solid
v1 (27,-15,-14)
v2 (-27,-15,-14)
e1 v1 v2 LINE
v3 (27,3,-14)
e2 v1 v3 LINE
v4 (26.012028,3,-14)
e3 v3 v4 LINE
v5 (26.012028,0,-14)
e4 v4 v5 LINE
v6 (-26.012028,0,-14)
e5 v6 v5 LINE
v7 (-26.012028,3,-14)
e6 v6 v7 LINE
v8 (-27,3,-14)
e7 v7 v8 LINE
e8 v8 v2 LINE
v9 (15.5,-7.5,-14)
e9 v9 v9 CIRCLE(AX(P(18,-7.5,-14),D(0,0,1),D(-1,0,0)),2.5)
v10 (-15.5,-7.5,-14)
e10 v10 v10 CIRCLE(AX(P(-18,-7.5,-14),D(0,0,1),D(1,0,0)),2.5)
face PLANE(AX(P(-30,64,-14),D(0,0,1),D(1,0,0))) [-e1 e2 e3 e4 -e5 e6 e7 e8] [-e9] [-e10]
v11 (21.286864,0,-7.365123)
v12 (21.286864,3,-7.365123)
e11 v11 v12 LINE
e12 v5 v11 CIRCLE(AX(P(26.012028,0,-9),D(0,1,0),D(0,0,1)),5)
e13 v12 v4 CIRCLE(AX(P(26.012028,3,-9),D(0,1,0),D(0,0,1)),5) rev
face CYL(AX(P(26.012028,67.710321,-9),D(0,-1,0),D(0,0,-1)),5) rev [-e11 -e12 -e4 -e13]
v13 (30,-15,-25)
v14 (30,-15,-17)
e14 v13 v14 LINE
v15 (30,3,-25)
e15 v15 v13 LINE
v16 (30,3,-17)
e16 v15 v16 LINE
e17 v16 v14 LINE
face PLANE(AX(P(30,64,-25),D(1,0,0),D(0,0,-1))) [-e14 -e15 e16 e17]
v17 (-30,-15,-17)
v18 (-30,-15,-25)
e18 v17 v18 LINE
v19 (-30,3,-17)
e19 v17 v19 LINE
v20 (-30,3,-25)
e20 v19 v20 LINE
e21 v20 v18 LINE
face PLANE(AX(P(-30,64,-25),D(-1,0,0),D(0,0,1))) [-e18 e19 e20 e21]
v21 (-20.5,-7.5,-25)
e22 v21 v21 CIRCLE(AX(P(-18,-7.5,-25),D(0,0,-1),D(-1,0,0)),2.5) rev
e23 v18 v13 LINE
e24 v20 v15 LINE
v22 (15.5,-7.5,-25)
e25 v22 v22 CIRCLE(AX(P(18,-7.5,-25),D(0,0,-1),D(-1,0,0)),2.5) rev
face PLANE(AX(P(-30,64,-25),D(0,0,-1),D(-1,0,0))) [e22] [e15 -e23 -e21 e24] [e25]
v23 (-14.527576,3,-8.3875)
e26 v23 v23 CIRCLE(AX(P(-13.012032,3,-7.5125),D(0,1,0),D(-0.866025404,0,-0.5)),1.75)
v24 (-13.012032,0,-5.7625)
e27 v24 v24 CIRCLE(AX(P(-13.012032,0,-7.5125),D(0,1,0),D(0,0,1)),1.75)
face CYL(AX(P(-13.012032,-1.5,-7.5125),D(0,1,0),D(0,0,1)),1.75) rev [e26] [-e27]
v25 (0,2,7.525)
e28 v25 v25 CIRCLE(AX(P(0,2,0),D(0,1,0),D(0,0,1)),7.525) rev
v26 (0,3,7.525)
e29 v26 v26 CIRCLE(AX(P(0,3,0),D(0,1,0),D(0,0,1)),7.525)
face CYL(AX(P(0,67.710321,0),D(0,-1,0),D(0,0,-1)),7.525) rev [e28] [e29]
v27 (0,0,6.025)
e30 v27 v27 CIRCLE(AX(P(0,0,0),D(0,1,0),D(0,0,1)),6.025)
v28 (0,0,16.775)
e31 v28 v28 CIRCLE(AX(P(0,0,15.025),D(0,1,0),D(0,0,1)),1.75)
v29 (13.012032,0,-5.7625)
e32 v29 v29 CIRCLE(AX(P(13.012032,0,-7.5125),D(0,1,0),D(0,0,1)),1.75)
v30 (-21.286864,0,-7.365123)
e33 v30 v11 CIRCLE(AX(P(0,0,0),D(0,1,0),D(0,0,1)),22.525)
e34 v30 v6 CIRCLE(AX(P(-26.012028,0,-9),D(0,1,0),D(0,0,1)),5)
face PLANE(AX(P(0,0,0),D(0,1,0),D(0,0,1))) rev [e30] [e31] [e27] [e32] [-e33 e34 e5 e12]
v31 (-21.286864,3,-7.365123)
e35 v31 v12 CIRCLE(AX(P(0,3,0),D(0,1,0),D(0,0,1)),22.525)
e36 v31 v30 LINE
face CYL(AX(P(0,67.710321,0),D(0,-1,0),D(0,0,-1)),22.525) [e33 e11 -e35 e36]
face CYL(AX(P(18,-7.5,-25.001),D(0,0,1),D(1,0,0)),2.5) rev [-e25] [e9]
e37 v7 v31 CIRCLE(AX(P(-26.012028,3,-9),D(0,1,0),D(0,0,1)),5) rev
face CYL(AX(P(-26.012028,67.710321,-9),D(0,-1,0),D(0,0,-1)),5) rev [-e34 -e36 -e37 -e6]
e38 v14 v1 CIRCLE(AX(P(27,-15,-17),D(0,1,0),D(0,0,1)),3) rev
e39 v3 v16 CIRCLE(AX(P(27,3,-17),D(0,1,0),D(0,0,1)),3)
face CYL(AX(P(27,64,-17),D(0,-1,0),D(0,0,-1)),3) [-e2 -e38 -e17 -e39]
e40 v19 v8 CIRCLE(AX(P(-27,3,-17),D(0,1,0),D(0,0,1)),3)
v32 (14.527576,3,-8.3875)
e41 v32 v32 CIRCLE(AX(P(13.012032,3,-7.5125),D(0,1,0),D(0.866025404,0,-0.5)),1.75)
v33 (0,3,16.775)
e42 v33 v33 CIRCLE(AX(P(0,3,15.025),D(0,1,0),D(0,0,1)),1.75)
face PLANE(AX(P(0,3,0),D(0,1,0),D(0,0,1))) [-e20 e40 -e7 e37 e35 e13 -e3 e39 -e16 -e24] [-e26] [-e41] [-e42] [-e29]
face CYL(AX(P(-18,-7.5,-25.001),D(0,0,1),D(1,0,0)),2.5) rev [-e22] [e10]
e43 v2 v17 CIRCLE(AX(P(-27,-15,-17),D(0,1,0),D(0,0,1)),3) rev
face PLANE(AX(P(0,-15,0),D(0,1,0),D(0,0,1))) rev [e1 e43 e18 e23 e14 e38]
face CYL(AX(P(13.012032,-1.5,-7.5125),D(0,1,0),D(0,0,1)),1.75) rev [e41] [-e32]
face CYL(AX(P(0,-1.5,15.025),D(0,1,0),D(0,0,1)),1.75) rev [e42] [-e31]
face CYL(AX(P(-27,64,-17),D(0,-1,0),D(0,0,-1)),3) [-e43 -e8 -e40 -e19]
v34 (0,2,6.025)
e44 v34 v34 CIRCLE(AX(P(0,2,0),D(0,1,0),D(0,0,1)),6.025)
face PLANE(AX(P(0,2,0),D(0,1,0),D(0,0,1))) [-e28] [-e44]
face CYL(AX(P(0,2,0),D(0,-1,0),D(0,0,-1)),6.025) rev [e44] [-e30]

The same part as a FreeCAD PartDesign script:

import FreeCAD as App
import Part
import Sketcher
from FreeCAD import Vector


def edges_at(feature, points):
    """Names of the edges that pass closest to the given points."""
    edges = feature.Shape.Edges
    near = lambda p: min(range(len(edges)), key=lambda i: edges[i].distToShape(Part.Vertex(*p))[0])
    return sorted({f"Edge{near(p) + 1}" for p in points})

doc = App.newDocument("Part")
body = doc.addObject("PartDesign::Body", "Body")

# Sketch on XZ plane
sketch1 = body.newObject("Sketcher::SketchObject", "Sketch")
sketch1.AttachmentSupport = (doc.getObject("XZ_Plane"), [""])
sketch1.MapMode = "FlatFace"
sketch1.addGeometry(Part.Circle(Vector(0, 0, 0), Vector(0, 0, 1), 8), False)
sketch1.addGeometry(Part.Circle(Vector(0, 0, 0), Vector(0, 0, 1), 6), False)
sketch1.addConstraint(Sketcher.Constraint("Coincident", 0, 3, -1, 1))
sketch1.addConstraint(Sketcher.Constraint("Coincident", 1, 3, -1, 1))
sketch1.addConstraint(Sketcher.Constraint("Diameter", 0, 15.05))
sketch1.addConstraint(Sketcher.Constraint("Diameter", 1, 12.05))
pad1 = body.newObject("PartDesign::Pad", "Pad")
pad1.Profile = sketch1
pad1.Length = 2
pad1.Reversed = True

# Sketch on XZ plane
sketch2 = body.newObject("Sketcher::SketchObject", "Sketch001")
sketch2.AttachmentSupport = (doc.getObject("XZ_Plane"), [""])
sketch2.MapMode = "FlatFace"
sketch2.addGeometry(Part.Circle(Vector(0, 0, 0), Vector(0, 0, 1), 23), False)
sketch2.addGeometry(Part.Circle(Vector(0, 0, 0), Vector(0, 0, 1), 8), False)
sketch2.addConstraint(Sketcher.Constraint("Coincident", 0, 3, -1, 1))
sketch2.addConstraint(Sketcher.Constraint("Coincident", 1, 3, -1, 1))
sketch2.addConstraint(Sketcher.Constraint("Diameter", 0, 45.05))
sketch2.addConstraint(Sketcher.Constraint("Diameter", 1, 15.05))
pad2 = body.newObject("PartDesign::Pad", "Pad001")
pad2.Profile = sketch2
pad2.Length = 3
pad2.Reversed = True

# Sketch on XZ plane
sketch3 = body.newObject("Sketcher::SketchObject", "Sketch002")
sketch3.AttachmentSupport = (doc.getObject("XZ_Plane"), [""])
sketch3.MapMode = "FlatFace"
sketch3.AttachmentOffset = App.Placement(Vector(0, 0, -3), App.Rotation())
sketch3.addGeometry(Part.Circle(Vector(0, 15, 0), Vector(0, 0, 1), 1.8), False)
sketch3.addConstraint(Sketcher.Constraint("PointOnObject", 0, 3, -2))
sketch3.addConstraint(Sketcher.Constraint("Diameter", 0, 3.5))
sketch3.addConstraint(Sketcher.Constraint("DistanceY", -1, 1, 0, 3, 15.025))
pocket1 = body.newObject("PartDesign::Pocket", "Pocket")
pocket1.Profile = sketch3
pocket1.Length = 4.5
pocket1.Reversed = True
doc.recompute()

polarpattern = body.newObject("PartDesign::PolarPattern", "PolarPattern")
polarpattern.Originals = [pocket1]
polarpattern.Axis = (doc.getObject("Y_Axis"), [""])
polarpattern.Angle = 360
polarpattern.Occurrences = 3
body.Tip = polarpattern

# Sketch on XZ plane
sketch4 = body.newObject("Sketcher::SketchObject", "Sketch003")
sketch4.AttachmentSupport = (doc.getObject("XZ_Plane"), [""])
sketch4.MapMode = "FlatFace"
sketch4.addGeometry(Part.LineSegment(Vector(-30, -14, 0), Vector(-30, -25, 0)), False)
sketch4.addGeometry(Part.LineSegment(Vector(-30, -25, 0), Vector(30, -25, 0)), False)
sketch4.addGeometry(Part.LineSegment(Vector(30, -25, 0), Vector(30, -14, 0)), False)
sketch4.addGeometry(Part.LineSegment(Vector(30, -14, 0), Vector(-30, -14, 0)), False)
sketch4.addConstraint(Sketcher.Constraint("Coincident", 0, 2, 1, 1))
sketch4.addConstraint(Sketcher.Constraint("Coincident", 1, 2, 2, 1))
sketch4.addConstraint(Sketcher.Constraint("Coincident", 2, 2, 3, 1))
sketch4.addConstraint(Sketcher.Constraint("Coincident", 3, 2, 0, 1))
sketch4.addConstraint(Sketcher.Constraint("Vertical", 0))
sketch4.addConstraint(Sketcher.Constraint("Horizontal", 1))
sketch4.addConstraint(Sketcher.Constraint("Vertical", 2))
sketch4.addConstraint(Sketcher.Constraint("Horizontal", 3))
sketch4.addConstraint(Sketcher.Constraint("DistanceX", 1, 1, 1, 2, 60.0))
sketch4.addConstraint(Sketcher.Constraint("DistanceY", 0, 2, 0, 1, 11.0))
sketch4.addConstraint(Sketcher.Constraint("DistanceX", 0, 2, -1, 1, 30.0))
sketch4.addConstraint(Sketcher.Constraint("DistanceY", 0, 2, -1, 1, 25.0))
pad3 = body.newObject("PartDesign::Pad", "Pad002")
pad3.Profile = sketch4
pad3.Type = "TwoLengths"
pad3.Length = 15
pad3.Length2 = 3

# Sketch on XY plane
sketch5 = body.newObject("Sketcher::SketchObject", "Sketch004")
sketch5.AttachmentSupport = (doc.getObject("XY_Plane"), [""])
sketch5.MapMode = "FlatFace"
sketch5.AttachmentOffset = App.Placement(Vector(0, 0, -14), App.Rotation())
sketch5.addGeometry(Part.Circle(Vector(-18, -7.5, 0), Vector(0, 0, 1), 2.5), False)
sketch5.addConstraint(Sketcher.Constraint("Diameter", 0, 5.0))
sketch5.addConstraint(Sketcher.Constraint("DistanceX", 0, 3, -1, 1, 18.0))
sketch5.addConstraint(Sketcher.Constraint("DistanceY", 0, 3, -1, 1, 7.5))
pocket2 = body.newObject("PartDesign::Pocket", "Pocket001")
pocket2.Profile = sketch5
pocket2.Type = "UpToFirst"

# Sketch on XY plane
sketch6 = body.newObject("Sketcher::SketchObject", "Sketch005")
sketch6.AttachmentSupport = (doc.getObject("XY_Plane"), [""])
sketch6.MapMode = "FlatFace"
sketch6.AttachmentOffset = App.Placement(Vector(0, 0, -14), App.Rotation())
sketch6.addGeometry(Part.Circle(Vector(18, -7.5, 0), Vector(0, 0, 1), 2.5), False)
sketch6.addConstraint(Sketcher.Constraint("Diameter", 0, 5.0))
sketch6.addConstraint(Sketcher.Constraint("DistanceX", -1, 1, 0, 3, 18.0))
sketch6.addConstraint(Sketcher.Constraint("DistanceY", 0, 3, -1, 1, 7.5))
pocket3 = body.newObject("PartDesign::Pocket", "Pocket002")
pocket3.Profile = sketch6
pocket3.Type = "UpToFirst"
doc.recompute()

fillet = body.newObject("PartDesign::Fillet", "Fillet")
fillet.Base = (pocket3, edges_at(pocket3, [(-30, -6, -14), (30, -6, -14)]))
fillet.Radius = 3
doc.recompute()

fillet2 = body.newObject("PartDesign::Fillet", "Fillet001")
fillet2.Base = (fillet, edges_at(fillet, [(-17.646, 1.5, -14), (17.646, 1.5, -14)]))
fillet2.Radius = 5

doc.recompute()
